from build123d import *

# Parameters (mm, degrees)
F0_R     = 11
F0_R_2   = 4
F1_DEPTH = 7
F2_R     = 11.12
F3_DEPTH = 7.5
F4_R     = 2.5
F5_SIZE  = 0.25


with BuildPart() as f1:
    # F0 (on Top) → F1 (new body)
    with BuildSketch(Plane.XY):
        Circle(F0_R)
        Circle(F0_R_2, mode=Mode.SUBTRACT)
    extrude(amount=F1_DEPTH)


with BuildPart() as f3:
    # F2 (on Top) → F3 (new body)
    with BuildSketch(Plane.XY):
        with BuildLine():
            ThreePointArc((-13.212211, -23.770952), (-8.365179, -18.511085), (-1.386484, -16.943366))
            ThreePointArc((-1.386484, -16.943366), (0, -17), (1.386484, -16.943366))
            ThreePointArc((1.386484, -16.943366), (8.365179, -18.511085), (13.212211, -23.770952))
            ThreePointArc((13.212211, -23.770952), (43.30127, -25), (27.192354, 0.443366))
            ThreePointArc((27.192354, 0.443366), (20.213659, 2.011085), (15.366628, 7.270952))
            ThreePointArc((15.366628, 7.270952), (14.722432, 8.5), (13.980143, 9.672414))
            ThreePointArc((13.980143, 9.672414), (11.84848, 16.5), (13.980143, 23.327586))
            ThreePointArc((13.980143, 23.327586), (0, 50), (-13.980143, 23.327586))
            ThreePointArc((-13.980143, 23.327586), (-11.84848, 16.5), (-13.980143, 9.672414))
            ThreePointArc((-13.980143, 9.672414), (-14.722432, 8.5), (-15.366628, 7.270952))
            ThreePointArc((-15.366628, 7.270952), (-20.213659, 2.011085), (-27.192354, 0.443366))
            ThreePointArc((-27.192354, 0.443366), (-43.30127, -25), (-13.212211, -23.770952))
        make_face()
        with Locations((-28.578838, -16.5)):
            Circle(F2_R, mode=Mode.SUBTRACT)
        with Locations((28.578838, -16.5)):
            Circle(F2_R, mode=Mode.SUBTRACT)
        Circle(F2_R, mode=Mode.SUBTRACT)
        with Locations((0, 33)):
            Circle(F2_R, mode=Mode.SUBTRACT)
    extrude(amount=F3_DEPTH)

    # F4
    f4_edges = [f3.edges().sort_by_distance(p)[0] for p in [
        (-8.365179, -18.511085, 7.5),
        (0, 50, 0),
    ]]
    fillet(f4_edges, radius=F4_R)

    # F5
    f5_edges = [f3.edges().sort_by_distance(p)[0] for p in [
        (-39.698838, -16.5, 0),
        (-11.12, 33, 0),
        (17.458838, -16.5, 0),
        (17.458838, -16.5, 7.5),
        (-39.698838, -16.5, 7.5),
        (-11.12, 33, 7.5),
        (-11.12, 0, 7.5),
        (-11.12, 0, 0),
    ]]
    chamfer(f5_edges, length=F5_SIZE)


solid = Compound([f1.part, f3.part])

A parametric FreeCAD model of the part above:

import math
import FreeCAD as App
import Part
import Sketcher
Q = App.Units.Quantity


def edges_at(feature, points):
    """Names of the edges that pass closest to the given points."""
    edges = feature.Shape.Edges
    near = lambda p: min(range(len(edges)), key=lambda i: edges[i].distToShape(Part.Vertex(*p))[0])
    return sorted({f"Edge{near(p) + 1}" for p in points})

doc = App.newDocument("Part")
body = doc.addObject("PartDesign::Body", "Body")

# Sketch on XY plane
sketch1 = doc.addObject("Sketcher::SketchObject", "Sketch")
body.addObject(sketch1)
sketch1.AttachmentSupport = (doc.XY_Plane, [""])
sketch1.MapMode = "FlatFace"
sketch1.addGeometry([
    Part.Circle(App.Vector(0, 0, 0), App.Vector(0, 0, 1), 11),
    Part.Circle(App.Vector(0, 0, 0), App.Vector(0, 0, 1), 4),
], False)
sketch1.addConstraint([
    Sketcher.Constraint("Coincident", 0, 3, -1, 1),
    Sketcher.Constraint("Coincident", 1, 3, -1, 1),
    Sketcher.Constraint("Diameter", 0, Q("22 mm")),
    Sketcher.Constraint("Diameter", 1, Q("8 mm")),
])
pad1 = doc.addObject("PartDesign::Pad", "Pad")
body.addObject(pad1)
pad1.Profile = sketch1
pad1.Length = 7
body2 = doc.addObject("PartDesign::Body", "Body001")

# Sketch on XY plane
sketch2 = doc.addObject("Sketcher::SketchObject", "Sketch001")
body2.addObject(sketch2)
sketch2.AttachmentSupport = (doc.getObject("XY_Plane001"), [""])
sketch2.MapMode = "FlatFace"
sketch2.addGeometry([
    Part.ArcOfCircle(Part.Circle(App.Vector(-2.4, -28.9, 0), App.Vector(0, 0, 1), 12), math.radians(85), math.radians(155)),  # 0
    Part.ArcOfCircle(Part.Circle(App.Vector(0, 0, 0), App.Vector(0, 0, 1), 17), math.radians(-94.68), math.radians(-85.32)),  # 1
    Part.ArcOfCircle(Part.Circle(App.Vector(2.4, -28.9, 0), App.Vector(0, 0, 1), 12), math.radians(25), math.radians(95)),  # 2
    Part.ArcOfCircle(Part.Circle(App.Vector(28.6, -16.5, 0), App.Vector(0, 0, 1), 17), math.radians(-155), math.radians(95)),  # 3
    Part.ArcOfCircle(Part.Circle(App.Vector(26.2, 12.4, 0), App.Vector(0, 0, 1), 12), math.radians(-155), math.radians(-85)),  # 4
    Part.ArcOfCircle(Part.Circle(App.Vector(0, 0, 0), App.Vector(0, 0, 1), 17), math.radians(25.32), math.radians(34.68)),  # 5
    Part.ArcOfCircle(Part.Circle(App.Vector(23.8, 16.5, 0), App.Vector(0, 0, 1), 12), math.radians(145), math.radians(215)),  # 6
    Part.ArcOfCircle(Part.Circle(App.Vector(0, 33, 0), App.Vector(0, 0, 1), 17), math.radians(-35), math.radians(215)),  # 7
    Part.ArcOfCircle(Part.Circle(App.Vector(-23.8, 16.5, 0), App.Vector(0, 0, 1), 12), math.radians(-35), math.radians(35)),  # 8
    Part.ArcOfCircle(Part.Circle(App.Vector(0, 0, 0), App.Vector(0, 0, 1), 17), math.radians(145.32), math.radians(154.68)),  # 9
    Part.ArcOfCircle(Part.Circle(App.Vector(-26.2, 12.4, 0), App.Vector(0, 0, 1), 12), math.radians(-95), math.radians(-25)),  # 10
    Part.ArcOfCircle(Part.Circle(App.Vector(-28.6, -16.5, 0), App.Vector(0, 0, 1), 17), math.radians(85), math.radians(335)),  # 11
    Part.Circle(App.Vector(-28.6, -16.5, 0), App.Vector(0, 0, 1), 11.1),  # 12
    Part.Circle(App.Vector(28.6, -16.5, 0), App.Vector(0, 0, 1), 11.1),  # 13
    Part.Circle(App.Vector(0, 0, 0), App.Vector(0, 0, 1), 11.1),  # 14
    Part.Circle(App.Vector(0, 33, 0), App.Vector(0, 0, 1), 11.1),  # 15
], False)
sketch2.addConstraint([
    Sketcher.Constraint("Tangent", 0, 1, 1, 1),
    Sketcher.Constraint("Tangent", 1, 2, 2, 2),
    Sketcher.Constraint("Tangent", 2, 1, 3, 1),
    Sketcher.Constraint("Tangent", 3, 2, 4, 2),
    Sketcher.Constraint("Tangent", 4, 1, 5, 1),
    Sketcher.Constraint("Tangent", 5, 2, 6, 2),
    Sketcher.Constraint("Tangent", 6, 1, 7, 1),
    Sketcher.Constraint("Tangent", 7, 2, 8, 2),
    Sketcher.Constraint("Tangent", 8, 1, 9, 1),
    Sketcher.Constraint("Tangent", 9, 2, 10, 2),
    Sketcher.Constraint("Tangent", 10, 1, 11, 1),
    Sketcher.Constraint("Tangent", 11, 2, 0, 2),
    Sketcher.Constraint("Coincident", 14, 3, -1, 1),
    Sketcher.Constraint("Coincident", 12, 3, 11, 3),
    Sketcher.Constraint("Coincident", 13, 3, 3, 3),
    Sketcher.Constraint("Coincident", 15, 3, 7, 3),
    Sketcher.Constraint("Equal", 0, 2),
    Sketcher.Constraint("Equal", 4, 6),
    Sketcher.Constraint("Equal", 3, 7),
    Sketcher.Constraint("Equal", 6, 8),
    Sketcher.Constraint("Equal", 5, 9),
    Sketcher.Constraint("Equal", 8, 10),
    Sketcher.Constraint("Equal", 7, 11),
    Sketcher.Constraint("Equal", 12, 13),
    Sketcher.Constraint("Equal", 13, 14),
    Sketcher.Constraint("Equal", 14, 15),
    Sketcher.Constraint("Symmetric", 0, 3, 2, 3, -2),
    Sketcher.Constraint("Symmetric", 6, 3, 8, 3, -2),
    Sketcher.Constraint("Symmetric", 4, 3, 10, 3, -2),
    Sketcher.Constraint("Vertical", 5, 2, 6, 1),
    Sketcher.Constraint("Radius", 3, Q("17 mm")),
    Sketcher.Constraint("Radius", 4, Q("12.000002 mm")),
    Sketcher.Constraint("Diameter", 12, Q("22.24 mm")),
    Sketcher.Constraint("DistanceY", -1, 1, 7, 3, Q("33 mm")),
    Sketcher.Constraint("DistanceY", 3, 3, 6, 3, Q("33 mm")),
    Sketcher.Constraint("DistanceY", 3, 3, -1, 1, Q("16.5 mm")),
    Sketcher.Constraint("Radius", 5, Q("16.999921 mm")),
    Sketcher.Constraint("Radius", 0, Q("12.000004 mm")),
    Sketcher.Constraint("Radius", 1, Q("16.999905 mm")),
    Sketcher.Constraint("DistanceY", 0, 3, 1, 3, Q("28.903299 mm")),
    Sketcher.Constraint("DistanceX", -1, 1, 3, 3, Q("28.578839 mm")),
])
pad2 = doc.addObject("PartDesign::Pad", "Pad001")
body2.addObject(pad2)
pad2.Profile = sketch2
pad2.Length = 7.5
doc.recompute()

fillet = doc.addObject("PartDesign::Fillet", "Fillet")
body2.addObject(fillet)
fillet.Base = (pad2, edges_at(pad2, [(-8.365, -18.511, 7.5), (0, 50, 0)]))
fillet.Radius = 2.5
doc.recompute()

chamfer = doc.addObject("PartDesign::Chamfer", "Chamfer")
body2.addObject(chamfer)
chamfer.Base = (fillet, edges_at(fillet, [
    (-39.699, -16.5, 0),
    (-11.12, 33, 0),
    (17.459, -16.5, 0),
    (17.459, -16.5, 7.5),
    (-39.699, -16.5, 7.5),
    (-11.12, 33, 7.5),
    (-11.12, 0, 7.5),
    (-11.12, 0, 0),
]))
chamfer.Size = 0.25

doc.recompute()
